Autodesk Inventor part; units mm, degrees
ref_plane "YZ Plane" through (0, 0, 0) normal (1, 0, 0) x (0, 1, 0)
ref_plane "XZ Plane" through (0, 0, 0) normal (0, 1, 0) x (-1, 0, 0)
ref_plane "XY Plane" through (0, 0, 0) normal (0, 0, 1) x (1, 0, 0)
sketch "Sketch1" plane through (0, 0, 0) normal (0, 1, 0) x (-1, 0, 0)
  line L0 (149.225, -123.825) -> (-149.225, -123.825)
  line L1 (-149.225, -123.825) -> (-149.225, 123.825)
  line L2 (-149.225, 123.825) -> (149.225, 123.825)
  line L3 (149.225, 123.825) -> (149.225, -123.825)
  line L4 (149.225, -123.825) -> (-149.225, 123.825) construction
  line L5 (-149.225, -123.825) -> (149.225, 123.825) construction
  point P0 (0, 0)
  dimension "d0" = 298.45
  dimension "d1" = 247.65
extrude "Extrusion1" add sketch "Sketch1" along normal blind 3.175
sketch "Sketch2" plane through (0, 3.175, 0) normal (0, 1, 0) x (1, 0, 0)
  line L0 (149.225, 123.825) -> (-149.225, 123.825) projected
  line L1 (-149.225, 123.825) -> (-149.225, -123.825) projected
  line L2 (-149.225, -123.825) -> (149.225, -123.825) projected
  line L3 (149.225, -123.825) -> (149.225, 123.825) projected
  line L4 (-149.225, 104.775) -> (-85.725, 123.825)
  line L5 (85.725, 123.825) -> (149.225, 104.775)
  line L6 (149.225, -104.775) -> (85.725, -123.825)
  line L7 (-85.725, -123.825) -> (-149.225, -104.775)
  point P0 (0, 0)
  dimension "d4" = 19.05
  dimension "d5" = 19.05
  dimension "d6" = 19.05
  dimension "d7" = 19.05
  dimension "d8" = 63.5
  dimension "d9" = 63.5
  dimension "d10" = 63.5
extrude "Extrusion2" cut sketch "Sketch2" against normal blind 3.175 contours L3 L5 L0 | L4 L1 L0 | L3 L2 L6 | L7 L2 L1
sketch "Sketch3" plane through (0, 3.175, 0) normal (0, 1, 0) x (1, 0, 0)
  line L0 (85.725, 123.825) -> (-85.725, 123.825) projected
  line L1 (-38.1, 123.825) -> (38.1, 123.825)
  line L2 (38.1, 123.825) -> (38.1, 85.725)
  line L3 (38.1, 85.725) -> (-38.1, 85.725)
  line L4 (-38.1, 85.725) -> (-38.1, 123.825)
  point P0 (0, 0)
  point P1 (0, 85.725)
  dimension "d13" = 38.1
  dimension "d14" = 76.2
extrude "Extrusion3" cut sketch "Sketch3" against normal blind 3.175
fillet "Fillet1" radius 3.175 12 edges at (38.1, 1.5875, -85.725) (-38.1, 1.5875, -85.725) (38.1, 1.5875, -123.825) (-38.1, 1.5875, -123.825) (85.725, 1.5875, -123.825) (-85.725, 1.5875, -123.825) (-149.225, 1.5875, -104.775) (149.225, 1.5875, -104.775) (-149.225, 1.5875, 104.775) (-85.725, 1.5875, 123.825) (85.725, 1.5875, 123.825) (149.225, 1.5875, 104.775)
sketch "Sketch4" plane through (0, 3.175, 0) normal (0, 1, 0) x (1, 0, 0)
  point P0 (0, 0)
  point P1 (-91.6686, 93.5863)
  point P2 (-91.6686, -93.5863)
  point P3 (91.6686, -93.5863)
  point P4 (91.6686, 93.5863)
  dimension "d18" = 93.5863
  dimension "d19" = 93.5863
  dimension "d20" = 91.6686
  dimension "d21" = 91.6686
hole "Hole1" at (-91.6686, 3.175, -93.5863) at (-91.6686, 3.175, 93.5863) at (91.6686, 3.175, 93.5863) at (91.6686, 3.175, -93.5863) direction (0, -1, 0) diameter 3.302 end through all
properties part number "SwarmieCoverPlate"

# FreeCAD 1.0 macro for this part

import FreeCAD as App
import Part
import Sketcher
from FreeCAD import Vector
Q = App.Units.Quantity


def edges_at(feature, points):
    """Names of the edges that pass closest to the given points."""
    edges = feature.Shape.Edges
    near = lambda p: min(range(len(edges)), key=lambda i: edges[i].distToShape(Part.Vertex(*p))[0])
    return sorted({f"Edge{near(p) + 1}" for p in points})


def add_polygon(sketch, points):
    """Adds a closed chain of lines whose ends are joined by coincident constraints."""
    first, n = sketch.GeometryCount, len(points)
    for a, b in zip(points, points[1:] + points[:1]):
        sketch.addGeometry(Part.LineSegment(App.Vector(*a, 0), App.Vector(*b, 0)), False)
    for i in range(n):
        sketch.addConstraint(Sketcher.Constraint("Coincident", first + i, 2, first + (i + 1) % n, 1))

doc = App.newDocument("Part")
params = doc.addObject("Spreadsheet::Sheet", "Params")
for row, (alias, value) in enumerate([
    ("sketch1_width", "11.75 in"),
    ("sketch1_height", "9.75 in"),
    ("pad1_length", "0.125 in"),
    ("sketch2_width", "2.5 in"),
    ("sketch2_height", "0.75 in"),
    ("pocket1_length", "0.125 in"),
    ("sketch3_width", "3 in"),
    ("sketch3_height", "1.5 in"),
    ("pocket2_length", "0.125 in"),
    ("fillet_radius", "0.125 in"),
    ("sketch4_diameter", "0.13 in"),
    ("hole_diameter", "0.13 in"),
], start=1):
    params.set(f"A{row}", alias)
    params.set(f"B{row}", "=" + value)
    params.setAlias(f"B{row}", alias)

body = doc.addObject("PartDesign::Body", "Body")

sketch1 = body.newObject("Sketcher::SketchObject", "Sketch")
sketch1.AttachmentSupport = (doc.getObject("XZ_Plane"), [""])
sketch1.MapMode = "FlatFace"
add_polygon(sketch1, [(149, -124), (-149, -124), (-149, 124), (149, 124)])
sketch1.addConstraint(Sketcher.Constraint("Horizontal", 0))
sketch1.addConstraint(Sketcher.Constraint("Vertical", 1))
sketch1.addConstraint(Sketcher.Constraint("Horizontal", 2))
sketch1.addConstraint(Sketcher.Constraint("Vertical", 3))
sketch1.addConstraint(Sketcher.Constraint("Symmetric", 0, 2, 2, 2, -1, 1))
sketch1.addConstraint(Sketcher.Constraint("DistanceX", 0, 2, 0, 1, Q("11.75 in")))
sketch1.addConstraint(Sketcher.Constraint("DistanceY", 1, 1, 1, 2, Q("9.75 in")))
sketch1.setExpression("Constraints[9]", "Params.sketch1_width")
sketch1.setExpression("Constraints[10]", "Params.sketch1_height")
pad1 = body.newObject("PartDesign::Pad", "Pad")
pad1.Profile = sketch1
pad1.setExpression("Length", "Params.pad1_length")
pad1.Reversed = True

sketch2 = body.newObject("Sketcher::SketchObject", "Sketch001")
sketch2.AttachmentSupport = (doc.getObject("XZ_Plane"), [""])
sketch2.MapMode = "FlatFace"
sketch2.AttachmentOffset = App.Placement(Vector(0, 0, -0.125 * 25.4), App.Rotation())
add_polygon(sketch2, [(149, -105), (149, -124), (86, -124)])
add_polygon(sketch2, [(-149, -105), (-86, -124), (-149, -124)])
add_polygon(sketch2, [(149, 124), (149, 105), (86, 124)])
add_polygon(sketch2, [(-86, 124), (-149, 105), (-149, 124)])
sketch2.addConstraint(Sketcher.Constraint("Vertical", 0))
sketch2.addConstraint(Sketcher.Constraint("Horizontal", 1))
sketch2.addConstraint(Sketcher.Constraint("Horizontal", 4))
sketch2.addConstraint(Sketcher.Constraint("Vertical", 5))
sketch2.addConstraint(Sketcher.Constraint("Vertical", 6))
sketch2.addConstraint(Sketcher.Constraint("Horizontal", 8))
sketch2.addConstraint(Sketcher.Constraint("Vertical", 10))
sketch2.addConstraint(Sketcher.Constraint("Horizontal", 11))
sketch2.addConstraint(Sketcher.Constraint("Symmetric", 5, 2, 6, 2, -1, 1))
sketch2.addConstraint(Sketcher.Constraint("Symmetric", 3, 2, 7, 2, -1, 1))
sketch2.addConstraint(Sketcher.Constraint("Symmetric", 2, 2, 9, 2, -1, 1))
sketch2.addConstraint(Sketcher.Constraint("Symmetric", 1, 2, 11, 2, -1, 1))
sketch2.addConstraint(Sketcher.Constraint("Symmetric", 1, 2, 3, 2, -2))
sketch2.addConstraint(Sketcher.Constraint("Symmetric", 2, 2, 5, 2, -2))
sketch2.addConstraint(Sketcher.Constraint("DistanceX", 1, 2, 1, 1, Q("2.5 in")))
sketch2.addConstraint(Sketcher.Constraint("DistanceY", 0, 2, 0, 1, Q("0.75 in")))
sketch2.addConstraint(Sketcher.Constraint("DistanceY", 0, 2, 6, 2, Q("9 in")))
sketch2.addConstraint(Sketcher.Constraint("DistanceX", 3, 2, 1, 2, Q("6.75 in")))
sketch2.setExpression("Constraints[26]", "Params.sketch2_width")
sketch2.setExpression("Constraints[27]", "Params.sketch2_height")
pocket1 = body.newObject("PartDesign::Pocket", "Pocket")
pocket1.Profile = sketch2
pocket1.setExpression("Length", "Params.pocket1_length")
pocket1.Reversed = True

sketch3 = body.newObject("Sketcher::SketchObject", "Sketch002")
sketch3.AttachmentSupport = (doc.getObject("XZ_Plane"), [""])
sketch3.MapMode = "FlatFace"
sketch3.AttachmentOffset = App.Placement(Vector(0, 0, -0.125 * 25.4), App.Rotation())
add_polygon(sketch3, [(38, -86), (38, -124), (-38, -124), (-38, -86)])
sketch3.addConstraint(Sketcher.Constraint("Vertical", 0))
sketch3.addConstraint(Sketcher.Constraint("Horizontal", 1))
sketch3.addConstraint(Sketcher.Constraint("Vertical", 2))
sketch3.addConstraint(Sketcher.Constraint("Horizontal", 3))
sketch3.addConstraint(Sketcher.Constraint("DistanceX", 1, 2, 1, 1, Q("3 in")))
sketch3.addConstraint(Sketcher.Constraint("DistanceY", 0, 2, 0, 1, Q("1.5 in")))
sketch3.addConstraint(Sketcher.Constraint("DistanceX", -1, 1, 0, 2, Q("1.5 in")))
sketch3.addConstraint(Sketcher.Constraint("DistanceY", 0, 2, -1, 1, Q("4.875 in")))
sketch3.setExpression("Constraints[8]", "Params.sketch3_width")
sketch3.setExpression("Constraints[9]", "Params.sketch3_height")
pocket2 = body.newObject("PartDesign::Pocket", "Pocket001")
pocket2.Profile = sketch3
pocket2.setExpression("Length", "Params.pocket2_length")
pocket2.Reversed = True
doc.recompute()

fillet = body.newObject("PartDesign::Fillet", "Fillet")
fillet.Base = (pocket2, edges_at(pocket2, [
    (38.1, 1.587, -85.725),
    (-38.1, 1.587, -85.725),
    (38.1, 1.587, -123.825),
    (-38.1, 1.587, -123.825),
    (85.725, 1.587, -123.825),
    (-85.725, 1.587, -123.825),
    (-149.225, 1.587, -104.775),
    (149.225, 1.587, -104.775),
    (-149.225, 1.587, 104.775),
    (-85.725, 1.587, 123.825),
    (85.725, 1.587, 123.825),
    (149.225, 1.587, 104.775),
]))
fillet.setExpression("Radius", "Params.fillet_radius")

sketch4 = body.newObject("Sketcher::SketchObject", "Sketch003")
sketch4.AttachmentSupport = (doc.getObject("XZ_Plane"), [""])
sketch4.MapMode = "FlatFace"
sketch4.AttachmentOffset = App.Placement(Vector(0, 0, -0.125 * 25.4), App.Rotation())
sketch4.addGeometry(Part.Circle(Vector(-91.7, -93.6, 0), Vector(0, 0, 1), 1.7), False)
sketch4.addGeometry(Part.Circle(Vector(-91.7, 93.6, 0), Vector(0, 0, 1), 1.7), False)
sketch4.addGeometry(Part.Circle(Vector(91.7, 93.6, 0), Vector(0, 0, 1), 1.7), False)
sketch4.addGeometry(Part.Circle(Vector(91.7, -93.6, 0), Vector(0, 0, 1), 1.7), False)
sketch4.addConstraint(Sketcher.Constraint("Equal", 0, 1))
sketch4.addConstraint(Sketcher.Constraint("Equal", 1, 2))
sketch4.addConstraint(Sketcher.Constraint("Equal", 2, 3))
sketch4.addConstraint(Sketcher.Constraint("Symmetric", 0, 3, 2, 3, -1, 1))
sketch4.addConstraint(Sketcher.Constraint("Symmetric", 1, 3, 3, 3, -1, 1))
sketch4.addConstraint(Sketcher.Constraint("Symmetric", 1, 3, 2, 3, -2))
sketch4.addConstraint(Sketcher.Constraint("Diameter", 0, Q("0.13 in")))
sketch4.addConstraint(Sketcher.Constraint("DistanceX", 0, 3, -1, 1, Q("3.609 in")))
sketch4.addConstraint(Sketcher.Constraint("DistanceY", 0, 3, 1, 3, Q("7.369 in")))
sketch4.setExpression("Constraints[6]", "Params.sketch4_diameter")
doc.recompute()
hole = body.newObject("PartDesign::Hole", "Hole")
hole.Profile = sketch4
hole.ThreadType = "None"
hole.setExpression("Diameter", "Params.hole_diameter")
hole.DepthType = "ThroughAll"
hole.Reversed = True

doc.recompute()
